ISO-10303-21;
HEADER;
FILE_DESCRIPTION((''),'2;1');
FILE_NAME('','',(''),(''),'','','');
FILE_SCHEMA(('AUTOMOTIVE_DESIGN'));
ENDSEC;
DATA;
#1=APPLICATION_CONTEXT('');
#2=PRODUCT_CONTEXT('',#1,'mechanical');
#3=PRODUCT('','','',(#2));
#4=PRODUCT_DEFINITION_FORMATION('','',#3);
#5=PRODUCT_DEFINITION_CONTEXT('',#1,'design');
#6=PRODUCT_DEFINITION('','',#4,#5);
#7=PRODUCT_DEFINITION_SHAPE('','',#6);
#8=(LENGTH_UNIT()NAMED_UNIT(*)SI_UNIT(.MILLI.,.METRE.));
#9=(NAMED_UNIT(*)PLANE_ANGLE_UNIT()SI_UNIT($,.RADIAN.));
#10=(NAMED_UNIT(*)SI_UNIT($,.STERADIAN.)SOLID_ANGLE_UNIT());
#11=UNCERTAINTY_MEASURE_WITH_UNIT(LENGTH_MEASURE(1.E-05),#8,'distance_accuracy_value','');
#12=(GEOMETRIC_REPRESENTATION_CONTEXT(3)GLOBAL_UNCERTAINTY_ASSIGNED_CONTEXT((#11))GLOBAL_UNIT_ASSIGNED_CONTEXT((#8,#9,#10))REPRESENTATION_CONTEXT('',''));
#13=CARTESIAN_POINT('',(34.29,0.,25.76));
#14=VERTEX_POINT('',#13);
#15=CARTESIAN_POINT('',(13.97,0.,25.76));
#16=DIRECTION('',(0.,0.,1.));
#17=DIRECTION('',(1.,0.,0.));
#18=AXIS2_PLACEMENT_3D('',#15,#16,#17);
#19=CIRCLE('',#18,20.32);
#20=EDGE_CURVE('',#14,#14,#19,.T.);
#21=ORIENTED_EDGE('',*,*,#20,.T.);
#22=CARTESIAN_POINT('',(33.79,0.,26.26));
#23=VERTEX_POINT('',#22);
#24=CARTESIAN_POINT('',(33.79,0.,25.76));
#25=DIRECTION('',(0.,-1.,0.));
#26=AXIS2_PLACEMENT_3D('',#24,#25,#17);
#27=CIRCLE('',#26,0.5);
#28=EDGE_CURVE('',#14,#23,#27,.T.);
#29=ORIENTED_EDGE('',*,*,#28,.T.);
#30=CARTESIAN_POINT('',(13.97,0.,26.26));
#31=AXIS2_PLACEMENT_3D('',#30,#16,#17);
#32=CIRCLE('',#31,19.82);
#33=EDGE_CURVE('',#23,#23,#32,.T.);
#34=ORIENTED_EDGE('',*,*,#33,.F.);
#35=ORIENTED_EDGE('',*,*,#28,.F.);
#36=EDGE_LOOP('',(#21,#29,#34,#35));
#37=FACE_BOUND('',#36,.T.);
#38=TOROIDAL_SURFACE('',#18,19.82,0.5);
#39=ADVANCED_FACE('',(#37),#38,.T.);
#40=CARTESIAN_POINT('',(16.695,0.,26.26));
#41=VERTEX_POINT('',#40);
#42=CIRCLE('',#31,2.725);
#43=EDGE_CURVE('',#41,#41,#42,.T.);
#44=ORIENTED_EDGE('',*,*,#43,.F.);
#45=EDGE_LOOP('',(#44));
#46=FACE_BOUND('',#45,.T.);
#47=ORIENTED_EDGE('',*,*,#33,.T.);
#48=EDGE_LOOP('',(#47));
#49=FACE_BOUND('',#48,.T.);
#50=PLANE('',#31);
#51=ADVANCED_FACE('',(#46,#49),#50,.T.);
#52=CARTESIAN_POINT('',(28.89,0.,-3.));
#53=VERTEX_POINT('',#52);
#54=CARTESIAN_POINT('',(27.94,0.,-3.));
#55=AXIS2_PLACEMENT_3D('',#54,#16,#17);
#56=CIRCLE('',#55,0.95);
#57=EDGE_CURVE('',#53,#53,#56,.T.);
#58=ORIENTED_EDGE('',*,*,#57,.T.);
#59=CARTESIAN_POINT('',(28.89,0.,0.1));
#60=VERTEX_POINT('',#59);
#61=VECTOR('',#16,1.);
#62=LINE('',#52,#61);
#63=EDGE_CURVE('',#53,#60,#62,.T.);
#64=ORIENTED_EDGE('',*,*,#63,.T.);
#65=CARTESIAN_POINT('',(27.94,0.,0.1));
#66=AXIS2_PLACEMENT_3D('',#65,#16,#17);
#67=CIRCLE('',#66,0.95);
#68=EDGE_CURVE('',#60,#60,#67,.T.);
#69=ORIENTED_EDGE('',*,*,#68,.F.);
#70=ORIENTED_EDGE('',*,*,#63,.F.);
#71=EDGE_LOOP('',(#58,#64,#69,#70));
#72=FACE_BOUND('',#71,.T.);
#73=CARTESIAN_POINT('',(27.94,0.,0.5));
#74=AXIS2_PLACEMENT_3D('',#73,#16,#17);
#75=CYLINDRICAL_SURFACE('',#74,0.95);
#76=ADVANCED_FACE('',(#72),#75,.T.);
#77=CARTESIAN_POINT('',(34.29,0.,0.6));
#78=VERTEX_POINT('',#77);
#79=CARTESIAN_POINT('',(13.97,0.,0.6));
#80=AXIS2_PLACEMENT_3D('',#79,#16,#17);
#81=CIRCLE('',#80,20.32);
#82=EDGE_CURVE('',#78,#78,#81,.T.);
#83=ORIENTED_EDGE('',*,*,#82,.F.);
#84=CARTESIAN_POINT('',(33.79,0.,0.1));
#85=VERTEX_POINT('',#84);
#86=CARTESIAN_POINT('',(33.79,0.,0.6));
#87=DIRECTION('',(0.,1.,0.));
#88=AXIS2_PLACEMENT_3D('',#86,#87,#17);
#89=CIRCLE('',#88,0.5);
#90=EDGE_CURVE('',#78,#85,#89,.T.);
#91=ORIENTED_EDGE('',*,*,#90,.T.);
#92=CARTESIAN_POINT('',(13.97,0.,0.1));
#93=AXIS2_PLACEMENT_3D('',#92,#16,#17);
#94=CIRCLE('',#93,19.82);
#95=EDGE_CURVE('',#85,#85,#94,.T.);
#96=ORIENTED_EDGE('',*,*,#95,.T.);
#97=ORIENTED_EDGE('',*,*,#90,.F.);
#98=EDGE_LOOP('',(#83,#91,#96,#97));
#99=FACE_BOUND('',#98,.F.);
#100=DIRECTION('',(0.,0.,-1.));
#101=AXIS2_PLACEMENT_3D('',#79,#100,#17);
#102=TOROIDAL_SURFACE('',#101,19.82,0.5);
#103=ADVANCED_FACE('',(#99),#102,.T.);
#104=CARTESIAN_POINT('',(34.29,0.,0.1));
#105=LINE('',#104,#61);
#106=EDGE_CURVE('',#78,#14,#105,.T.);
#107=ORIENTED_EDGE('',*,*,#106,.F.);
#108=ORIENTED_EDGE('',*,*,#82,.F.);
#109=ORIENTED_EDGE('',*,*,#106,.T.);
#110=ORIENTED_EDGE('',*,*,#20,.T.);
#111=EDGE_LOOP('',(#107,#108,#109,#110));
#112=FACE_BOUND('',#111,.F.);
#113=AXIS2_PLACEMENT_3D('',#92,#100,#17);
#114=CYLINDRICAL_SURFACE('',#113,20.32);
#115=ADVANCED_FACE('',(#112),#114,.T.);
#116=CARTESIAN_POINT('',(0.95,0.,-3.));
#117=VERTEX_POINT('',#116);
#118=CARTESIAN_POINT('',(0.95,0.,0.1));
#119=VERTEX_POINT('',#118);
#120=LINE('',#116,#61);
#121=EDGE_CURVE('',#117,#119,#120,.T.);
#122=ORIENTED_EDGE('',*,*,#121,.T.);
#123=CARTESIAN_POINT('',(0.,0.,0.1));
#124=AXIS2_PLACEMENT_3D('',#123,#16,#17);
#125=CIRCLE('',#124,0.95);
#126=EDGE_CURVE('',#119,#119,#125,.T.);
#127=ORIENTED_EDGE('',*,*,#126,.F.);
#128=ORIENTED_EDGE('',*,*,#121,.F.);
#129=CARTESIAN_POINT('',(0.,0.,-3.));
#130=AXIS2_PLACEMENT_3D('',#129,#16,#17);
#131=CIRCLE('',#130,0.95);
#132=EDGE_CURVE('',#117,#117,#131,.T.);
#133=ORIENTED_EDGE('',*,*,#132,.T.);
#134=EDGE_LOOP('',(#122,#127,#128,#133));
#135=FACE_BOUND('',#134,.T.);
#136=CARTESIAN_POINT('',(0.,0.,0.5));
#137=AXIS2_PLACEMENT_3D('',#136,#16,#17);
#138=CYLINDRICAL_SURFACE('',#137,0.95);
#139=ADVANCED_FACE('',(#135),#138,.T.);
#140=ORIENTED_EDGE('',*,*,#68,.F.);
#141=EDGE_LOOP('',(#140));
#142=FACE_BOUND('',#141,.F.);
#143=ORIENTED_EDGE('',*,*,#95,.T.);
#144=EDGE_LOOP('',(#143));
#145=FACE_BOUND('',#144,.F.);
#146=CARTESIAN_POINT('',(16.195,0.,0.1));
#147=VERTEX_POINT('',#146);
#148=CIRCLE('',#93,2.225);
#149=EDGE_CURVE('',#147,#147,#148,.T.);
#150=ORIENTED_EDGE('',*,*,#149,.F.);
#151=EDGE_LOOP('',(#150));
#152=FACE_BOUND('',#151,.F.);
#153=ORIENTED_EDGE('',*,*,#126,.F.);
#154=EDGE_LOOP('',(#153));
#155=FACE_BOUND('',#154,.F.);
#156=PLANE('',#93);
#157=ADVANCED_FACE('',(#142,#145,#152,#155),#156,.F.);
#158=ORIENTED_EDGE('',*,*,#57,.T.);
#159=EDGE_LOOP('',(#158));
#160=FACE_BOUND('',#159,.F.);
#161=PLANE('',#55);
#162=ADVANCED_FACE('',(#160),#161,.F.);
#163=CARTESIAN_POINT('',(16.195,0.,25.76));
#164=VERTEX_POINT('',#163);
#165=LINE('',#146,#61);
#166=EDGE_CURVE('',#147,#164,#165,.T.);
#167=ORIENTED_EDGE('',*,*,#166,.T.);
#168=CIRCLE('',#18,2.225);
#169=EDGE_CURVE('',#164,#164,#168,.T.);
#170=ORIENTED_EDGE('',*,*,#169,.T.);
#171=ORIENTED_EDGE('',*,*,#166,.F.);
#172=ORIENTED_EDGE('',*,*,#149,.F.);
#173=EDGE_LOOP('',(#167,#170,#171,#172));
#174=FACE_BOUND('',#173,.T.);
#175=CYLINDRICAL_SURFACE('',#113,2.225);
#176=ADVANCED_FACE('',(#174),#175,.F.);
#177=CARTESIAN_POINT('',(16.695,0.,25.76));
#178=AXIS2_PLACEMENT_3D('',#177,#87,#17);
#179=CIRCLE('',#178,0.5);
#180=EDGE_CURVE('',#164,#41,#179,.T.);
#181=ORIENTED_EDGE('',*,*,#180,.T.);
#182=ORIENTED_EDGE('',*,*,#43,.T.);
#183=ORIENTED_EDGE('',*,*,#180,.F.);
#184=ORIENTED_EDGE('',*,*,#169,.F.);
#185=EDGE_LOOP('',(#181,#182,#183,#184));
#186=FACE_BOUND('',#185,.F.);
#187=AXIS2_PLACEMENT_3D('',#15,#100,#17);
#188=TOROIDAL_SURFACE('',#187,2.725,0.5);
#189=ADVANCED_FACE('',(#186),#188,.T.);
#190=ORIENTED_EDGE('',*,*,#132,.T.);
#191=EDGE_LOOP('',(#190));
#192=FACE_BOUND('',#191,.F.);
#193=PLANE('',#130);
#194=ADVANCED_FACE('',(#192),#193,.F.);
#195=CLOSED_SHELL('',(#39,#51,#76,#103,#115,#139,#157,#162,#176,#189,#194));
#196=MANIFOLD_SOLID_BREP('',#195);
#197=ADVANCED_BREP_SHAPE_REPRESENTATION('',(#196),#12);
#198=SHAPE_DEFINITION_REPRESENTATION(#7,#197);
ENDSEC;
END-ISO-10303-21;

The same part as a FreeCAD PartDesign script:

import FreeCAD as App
import Part
import Sketcher

V = App.Vector
Q = App.Units.Quantity


def edges_at(feature, points):
    """Names of the edges that pass closest to the given points."""
    edges = feature.Shape.Edges
    near = lambda p: min(range(len(edges)), key=lambda i: edges[i].distToShape(Part.Vertex(*p))[0])
    return sorted({f"Edge{near(p) + 1}" for p in points})

doc = App.newDocument("Part")
body = doc.addObject("PartDesign::Body", "Body")
body.AllowCompound = True

# Sketch on XY plane
sketch1 = body.newObject("Sketcher::SketchObject", "Sketch")
sketch1.AttachmentSupport = (doc.getObject("XY_Plane"), [""])
sketch1.MapMode = "FlatFace"
sketch1.AttachmentOffset = App.Placement(V(0, 0, 0.5), App.Rotation())
sketch1.addGeometry(Part.Circle(V(0, 0, 0), V(0, 0, 1), 0.95), False)
sketch1.addGeometry(Part.Circle(V(27.94, 0, 0), V(0, 0, 1), 0.95), False)
sketch1.addConstraint(Sketcher.Constraint("Coincident", 0, 3, -1, 1))
sketch1.addConstraint(Sketcher.Constraint("Equal", 0, 1))
sketch1.addConstraint(Sketcher.Constraint("PointOnObject", 1, 3, -1))
sketch1.addConstraint(Sketcher.Constraint("Diameter", 0, Q("1.9 mm")))
sketch1.addConstraint(Sketcher.Constraint("DistanceX", -1, 1, 1, 3, Q("27.94 mm")))
pad1 = body.newObject("PartDesign::Pad", "Pad")
pad1.Profile = sketch1
pad1.Type = "TwoLengths"
pad1.Length = 13.08
pad1.Length2 = 3.5
body2 = doc.addObject("PartDesign::Body", "Body001")

# Sketch on XY plane
sketch2 = body2.newObject("Sketcher::SketchObject", "Sketch001")
sketch2.AttachmentSupport = (doc.getObject("XY_Plane001"), [""])
sketch2.MapMode = "FlatFace"
sketch2.AttachmentOffset = App.Placement(V(0, 0, 0.1), App.Rotation())
sketch2.addGeometry(Part.Circle(V(13.97, 0, 0), V(0, 0, 1), 20.32), False)
sketch2.addGeometry(Part.Circle(V(13.97, 0, 0), V(0, 0, 1), 2.225), False)
sketch2.addConstraint(Sketcher.Constraint("Coincident", 1, 3, 0, 3))
sketch2.addConstraint(Sketcher.Constraint("PointOnObject", 0, 3, -1))
sketch2.addConstraint(Sketcher.Constraint("Diameter", 0, Q("40.64 mm")))
sketch2.addConstraint(Sketcher.Constraint("Diameter", 1, Q("4.45 mm")))
sketch2.addConstraint(Sketcher.Constraint("DistanceX", -1, 1, 0, 3, Q("13.97 mm")))
pad2 = body2.newObject("PartDesign::Pad", "Pad001")
pad2.Profile = sketch2
pad2.Length = 26.16
doc.recompute()

fillet = body2.newObject("PartDesign::Fillet", "Fillet")
fillet.Base = (pad2, edges_at(pad2, [(11.745, 0, 26.26), (-6.35, 0, 26.26), (-6.35, 0, 0.1)]))
fillet.Radius = 0.5
doc.recompute()

boolean = body2.newObject("PartDesign::Boolean", "Boolean")
boolean.Type = "Fuse"
boolean.addObjects([body])

doc.recompute()
